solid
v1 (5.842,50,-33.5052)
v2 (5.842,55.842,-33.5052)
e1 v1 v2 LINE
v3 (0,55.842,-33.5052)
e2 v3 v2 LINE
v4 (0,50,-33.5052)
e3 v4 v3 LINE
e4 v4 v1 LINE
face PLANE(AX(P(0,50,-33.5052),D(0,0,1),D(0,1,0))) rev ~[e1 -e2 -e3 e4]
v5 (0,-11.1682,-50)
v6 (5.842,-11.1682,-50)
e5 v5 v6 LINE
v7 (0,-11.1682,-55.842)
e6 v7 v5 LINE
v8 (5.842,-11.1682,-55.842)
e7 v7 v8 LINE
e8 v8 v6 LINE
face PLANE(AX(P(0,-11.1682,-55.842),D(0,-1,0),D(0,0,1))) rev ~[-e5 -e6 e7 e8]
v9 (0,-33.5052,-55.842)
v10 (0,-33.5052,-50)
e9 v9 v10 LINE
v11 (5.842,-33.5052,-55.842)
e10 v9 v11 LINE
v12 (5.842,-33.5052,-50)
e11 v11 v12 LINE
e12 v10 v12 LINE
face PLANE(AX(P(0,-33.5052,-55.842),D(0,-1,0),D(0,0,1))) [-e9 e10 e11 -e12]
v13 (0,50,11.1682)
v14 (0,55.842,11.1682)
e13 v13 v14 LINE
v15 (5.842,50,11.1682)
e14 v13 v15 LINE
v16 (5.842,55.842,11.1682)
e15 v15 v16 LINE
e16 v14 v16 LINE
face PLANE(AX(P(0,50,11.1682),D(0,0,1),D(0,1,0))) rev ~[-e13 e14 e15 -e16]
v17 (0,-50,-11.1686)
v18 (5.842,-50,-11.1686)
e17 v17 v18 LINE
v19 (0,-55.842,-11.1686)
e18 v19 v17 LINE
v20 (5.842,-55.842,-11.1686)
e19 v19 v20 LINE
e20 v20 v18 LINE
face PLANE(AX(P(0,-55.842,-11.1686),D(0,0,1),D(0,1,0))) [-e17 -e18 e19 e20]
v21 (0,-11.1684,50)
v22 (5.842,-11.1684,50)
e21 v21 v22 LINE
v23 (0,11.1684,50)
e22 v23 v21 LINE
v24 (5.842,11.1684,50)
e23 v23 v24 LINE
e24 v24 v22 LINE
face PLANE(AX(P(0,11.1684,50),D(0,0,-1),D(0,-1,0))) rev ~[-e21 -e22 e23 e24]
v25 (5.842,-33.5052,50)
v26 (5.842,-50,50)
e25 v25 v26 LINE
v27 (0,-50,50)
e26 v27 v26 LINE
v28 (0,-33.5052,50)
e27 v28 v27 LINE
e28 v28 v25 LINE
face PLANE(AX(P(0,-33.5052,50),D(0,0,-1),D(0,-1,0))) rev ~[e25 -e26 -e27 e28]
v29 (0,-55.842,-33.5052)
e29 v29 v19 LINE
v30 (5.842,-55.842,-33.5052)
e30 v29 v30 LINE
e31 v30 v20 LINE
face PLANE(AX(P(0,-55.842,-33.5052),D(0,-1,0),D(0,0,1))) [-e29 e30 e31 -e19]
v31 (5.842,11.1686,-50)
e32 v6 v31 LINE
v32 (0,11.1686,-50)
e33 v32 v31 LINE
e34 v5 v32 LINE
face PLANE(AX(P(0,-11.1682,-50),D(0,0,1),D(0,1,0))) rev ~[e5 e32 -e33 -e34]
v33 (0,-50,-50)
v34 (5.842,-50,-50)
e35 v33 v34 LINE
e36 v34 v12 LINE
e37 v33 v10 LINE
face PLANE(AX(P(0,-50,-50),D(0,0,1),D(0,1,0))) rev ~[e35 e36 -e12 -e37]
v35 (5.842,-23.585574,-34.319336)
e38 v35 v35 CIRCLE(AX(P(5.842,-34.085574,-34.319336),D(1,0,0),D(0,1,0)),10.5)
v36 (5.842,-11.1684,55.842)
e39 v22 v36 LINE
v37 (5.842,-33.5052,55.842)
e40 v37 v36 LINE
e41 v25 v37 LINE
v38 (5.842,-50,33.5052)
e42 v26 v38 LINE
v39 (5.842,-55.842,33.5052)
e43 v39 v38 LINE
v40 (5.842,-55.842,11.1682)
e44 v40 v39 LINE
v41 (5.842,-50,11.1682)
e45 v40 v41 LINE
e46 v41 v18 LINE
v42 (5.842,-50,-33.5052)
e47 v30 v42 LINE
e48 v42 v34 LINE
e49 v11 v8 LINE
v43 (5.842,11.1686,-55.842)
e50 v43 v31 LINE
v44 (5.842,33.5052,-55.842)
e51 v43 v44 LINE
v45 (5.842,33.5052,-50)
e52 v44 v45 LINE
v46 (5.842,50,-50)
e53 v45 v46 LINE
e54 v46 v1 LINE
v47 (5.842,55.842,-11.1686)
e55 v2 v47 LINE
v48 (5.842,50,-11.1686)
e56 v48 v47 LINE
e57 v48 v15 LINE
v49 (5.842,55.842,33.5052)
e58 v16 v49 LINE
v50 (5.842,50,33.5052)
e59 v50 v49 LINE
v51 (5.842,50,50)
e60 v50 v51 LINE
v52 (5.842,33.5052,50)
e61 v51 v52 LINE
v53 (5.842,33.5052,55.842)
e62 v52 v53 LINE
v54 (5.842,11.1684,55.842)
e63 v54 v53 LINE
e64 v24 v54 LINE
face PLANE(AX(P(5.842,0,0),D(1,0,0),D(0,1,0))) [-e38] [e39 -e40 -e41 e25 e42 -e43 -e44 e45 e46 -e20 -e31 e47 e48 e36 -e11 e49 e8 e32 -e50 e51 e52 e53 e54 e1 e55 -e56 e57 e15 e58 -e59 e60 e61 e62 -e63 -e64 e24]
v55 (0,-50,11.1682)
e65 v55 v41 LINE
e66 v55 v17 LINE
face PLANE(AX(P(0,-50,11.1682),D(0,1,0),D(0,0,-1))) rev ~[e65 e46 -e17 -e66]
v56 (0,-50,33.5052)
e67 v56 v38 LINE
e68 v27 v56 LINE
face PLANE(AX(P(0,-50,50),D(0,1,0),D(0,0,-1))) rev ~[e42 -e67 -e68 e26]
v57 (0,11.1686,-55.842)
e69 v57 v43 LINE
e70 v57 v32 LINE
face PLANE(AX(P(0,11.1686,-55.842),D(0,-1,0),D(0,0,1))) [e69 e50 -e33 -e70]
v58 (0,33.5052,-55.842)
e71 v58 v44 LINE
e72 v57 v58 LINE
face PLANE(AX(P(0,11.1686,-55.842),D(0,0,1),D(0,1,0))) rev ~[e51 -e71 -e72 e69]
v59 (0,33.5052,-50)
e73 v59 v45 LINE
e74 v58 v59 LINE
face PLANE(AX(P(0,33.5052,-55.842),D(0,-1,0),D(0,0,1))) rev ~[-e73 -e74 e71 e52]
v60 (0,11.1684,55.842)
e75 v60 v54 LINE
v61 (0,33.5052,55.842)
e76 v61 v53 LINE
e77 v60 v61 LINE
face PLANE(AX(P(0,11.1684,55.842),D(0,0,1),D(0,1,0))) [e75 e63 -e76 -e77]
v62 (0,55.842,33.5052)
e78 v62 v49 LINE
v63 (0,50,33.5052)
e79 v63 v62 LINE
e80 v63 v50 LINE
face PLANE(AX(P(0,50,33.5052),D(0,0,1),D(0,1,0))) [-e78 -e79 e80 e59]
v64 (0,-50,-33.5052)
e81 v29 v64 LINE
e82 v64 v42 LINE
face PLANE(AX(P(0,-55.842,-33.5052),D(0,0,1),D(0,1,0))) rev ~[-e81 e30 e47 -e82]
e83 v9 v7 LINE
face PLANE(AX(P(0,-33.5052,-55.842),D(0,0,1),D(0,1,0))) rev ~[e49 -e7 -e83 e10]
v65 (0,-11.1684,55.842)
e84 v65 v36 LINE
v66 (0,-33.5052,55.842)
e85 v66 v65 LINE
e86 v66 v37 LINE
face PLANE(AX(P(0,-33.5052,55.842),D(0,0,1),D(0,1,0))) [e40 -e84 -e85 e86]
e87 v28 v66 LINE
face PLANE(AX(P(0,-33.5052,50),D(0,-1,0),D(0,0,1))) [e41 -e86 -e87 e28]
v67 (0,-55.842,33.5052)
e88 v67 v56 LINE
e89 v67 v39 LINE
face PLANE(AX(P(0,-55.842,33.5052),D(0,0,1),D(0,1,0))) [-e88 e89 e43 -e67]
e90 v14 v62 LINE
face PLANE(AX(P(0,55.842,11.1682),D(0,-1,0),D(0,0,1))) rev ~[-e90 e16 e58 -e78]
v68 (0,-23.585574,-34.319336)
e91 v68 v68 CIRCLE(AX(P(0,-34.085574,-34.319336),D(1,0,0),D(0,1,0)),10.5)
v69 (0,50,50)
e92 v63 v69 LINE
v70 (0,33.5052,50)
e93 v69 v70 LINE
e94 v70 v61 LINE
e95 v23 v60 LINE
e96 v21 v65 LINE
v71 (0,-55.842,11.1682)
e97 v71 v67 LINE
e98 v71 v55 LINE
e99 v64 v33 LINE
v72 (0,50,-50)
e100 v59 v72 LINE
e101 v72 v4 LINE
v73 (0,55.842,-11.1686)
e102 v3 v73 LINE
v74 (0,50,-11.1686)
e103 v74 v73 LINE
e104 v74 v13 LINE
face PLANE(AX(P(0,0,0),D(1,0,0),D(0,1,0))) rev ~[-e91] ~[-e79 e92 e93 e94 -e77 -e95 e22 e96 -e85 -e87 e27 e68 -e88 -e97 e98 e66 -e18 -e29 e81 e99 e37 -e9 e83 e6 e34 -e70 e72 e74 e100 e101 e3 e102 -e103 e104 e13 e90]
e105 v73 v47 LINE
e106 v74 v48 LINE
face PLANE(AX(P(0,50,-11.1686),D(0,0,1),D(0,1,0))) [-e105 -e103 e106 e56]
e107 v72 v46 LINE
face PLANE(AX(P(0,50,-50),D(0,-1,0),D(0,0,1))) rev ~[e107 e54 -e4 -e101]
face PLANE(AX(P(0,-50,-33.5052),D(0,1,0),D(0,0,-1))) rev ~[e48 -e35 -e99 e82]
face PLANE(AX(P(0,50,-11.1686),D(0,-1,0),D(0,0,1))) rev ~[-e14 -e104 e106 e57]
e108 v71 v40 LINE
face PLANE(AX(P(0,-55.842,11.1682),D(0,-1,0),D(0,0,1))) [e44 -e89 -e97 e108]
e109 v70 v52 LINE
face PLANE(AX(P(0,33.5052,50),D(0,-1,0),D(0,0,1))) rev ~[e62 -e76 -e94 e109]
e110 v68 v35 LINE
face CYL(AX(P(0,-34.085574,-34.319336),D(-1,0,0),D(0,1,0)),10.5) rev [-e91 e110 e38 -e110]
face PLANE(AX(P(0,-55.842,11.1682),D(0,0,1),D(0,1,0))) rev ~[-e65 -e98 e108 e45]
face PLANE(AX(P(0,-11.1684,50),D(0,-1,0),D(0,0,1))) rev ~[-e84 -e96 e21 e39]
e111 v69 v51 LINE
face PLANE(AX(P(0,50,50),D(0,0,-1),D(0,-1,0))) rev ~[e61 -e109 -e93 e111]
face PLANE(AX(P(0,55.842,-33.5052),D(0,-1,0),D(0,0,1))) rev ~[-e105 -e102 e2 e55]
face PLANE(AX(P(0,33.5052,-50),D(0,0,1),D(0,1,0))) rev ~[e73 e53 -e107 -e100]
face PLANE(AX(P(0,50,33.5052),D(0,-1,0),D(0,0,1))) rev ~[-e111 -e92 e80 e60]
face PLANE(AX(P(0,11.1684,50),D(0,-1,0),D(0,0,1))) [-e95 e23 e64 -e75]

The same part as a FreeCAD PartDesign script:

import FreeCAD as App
import Part
import Sketcher
Q = App.Units.Quantity

doc = App.newDocument("Part")
body = doc.addObject("PartDesign::Body", "Body")

sketch1 = body.newObject("Sketcher::SketchObject", "Sketch")
sketch1.AttachmentSupport = (doc.getObject("YZ_Plane"), [""])
sketch1.MapMode = "FlatFace"
sketch1.addGeometry(Part.LineSegment(App.Vector(-50, 50, 0), App.Vector(-50, 34, 0)), False)
sketch1.addGeometry(Part.LineSegment(App.Vector(-50, 34, 0), App.Vector(-56, 34, 0)), False)
sketch1.addGeometry(Part.LineSegment(App.Vector(-56, 34, 0), App.Vector(-56, 11, 0)), False)
sketch1.addGeometry(Part.LineSegment(App.Vector(-56, 11, 0), App.Vector(-50, 11, 0)), False)
sketch1.addGeometry(Part.LineSegment(App.Vector(-50, 11, 0), App.Vector(-50, -11, 0)), False)
sketch1.addGeometry(Part.LineSegment(App.Vector(-50, -11, 0), App.Vector(-56, -11, 0)), False)
sketch1.addGeometry(Part.LineSegment(App.Vector(-56, -11, 0), App.Vector(-56, -34, 0)), False)
sketch1.addGeometry(Part.LineSegment(App.Vector(-56, -34, 0), App.Vector(-50, -34, 0)), False)
sketch1.addGeometry(Part.LineSegment(App.Vector(-50, -34, 0), App.Vector(-50, -50, 0)), False)
sketch1.addGeometry(Part.LineSegment(App.Vector(-50, -50, 0), App.Vector(-34, -50, 0)), False)
sketch1.addGeometry(Part.LineSegment(App.Vector(-34, -50, 0), App.Vector(-34, -56, 0)), False)
sketch1.addGeometry(Part.LineSegment(App.Vector(-34, -56, 0), App.Vector(-11, -56, 0)), False)
sketch1.addGeometry(Part.LineSegment(App.Vector(-11, -56, 0), App.Vector(-11, -50, 0)), False)
sketch1.addGeometry(Part.LineSegment(App.Vector(-11, -50, 0), App.Vector(11, -50, 0)), False)
sketch1.addGeometry(Part.LineSegment(App.Vector(11, -50, 0), App.Vector(11, -56, 0)), False)
sketch1.addGeometry(Part.LineSegment(App.Vector(11, -56, 0), App.Vector(34, -56, 0)), False)
sketch1.addGeometry(Part.LineSegment(App.Vector(34, -56, 0), App.Vector(34, -50, 0)), False)
sketch1.addGeometry(Part.LineSegment(App.Vector(34, -50, 0), App.Vector(50, -50, 0)), False)
sketch1.addGeometry(Part.LineSegment(App.Vector(50, -50, 0), App.Vector(50, -34, 0)), False)
sketch1.addGeometry(Part.LineSegment(App.Vector(50, -34, 0), App.Vector(56, -34, 0)), False)
sketch1.addGeometry(Part.LineSegment(App.Vector(56, -34, 0), App.Vector(56, -11, 0)), False)
sketch1.addGeometry(Part.LineSegment(App.Vector(56, -11, 0), App.Vector(50, -11, 0)), False)
sketch1.addGeometry(Part.LineSegment(App.Vector(50, -11, 0), App.Vector(50, 11, 0)), False)
sketch1.addGeometry(Part.LineSegment(App.Vector(50, 11, 0), App.Vector(56, 11, 0)), False)
sketch1.addGeometry(Part.LineSegment(App.Vector(56, 11, 0), App.Vector(56, 34, 0)), False)
sketch1.addGeometry(Part.LineSegment(App.Vector(56, 34, 0), App.Vector(50, 34, 0)), False)
sketch1.addGeometry(Part.LineSegment(App.Vector(50, 34, 0), App.Vector(50, 50, 0)), False)
sketch1.addGeometry(Part.LineSegment(App.Vector(50, 50, 0), App.Vector(34, 50, 0)), False)
sketch1.addGeometry(Part.LineSegment(App.Vector(34, 50, 0), App.Vector(34, 56, 0)), False)
sketch1.addGeometry(Part.LineSegment(App.Vector(34, 56, 0), App.Vector(11, 56, 0)), False)
sketch1.addGeometry(Part.LineSegment(App.Vector(11, 56, 0), App.Vector(11, 50, 0)), False)
sketch1.addGeometry(Part.LineSegment(App.Vector(11, 50, 0), App.Vector(-11, 50, 0)), False)
sketch1.addGeometry(Part.LineSegment(App.Vector(-11, 50, 0), App.Vector(-11, 56, 0)), False)
sketch1.addGeometry(Part.LineSegment(App.Vector(-11, 56, 0), App.Vector(-34, 56, 0)), False)
sketch1.addGeometry(Part.LineSegment(App.Vector(-34, 56, 0), App.Vector(-34, 50, 0)), False)
sketch1.addGeometry(Part.LineSegment(App.Vector(-34, 50, 0), App.Vector(-50, 50, 0)), False)
sketch1.addGeometry(Part.Circle(App.Vector(-34, -34, 0), App.Vector(0, 0, 1), 10), False)
sketch1.addConstraint(Sketcher.Constraint("Coincident", 0, 2, 1, 1))
sketch1.addConstraint(Sketcher.Constraint("Coincident", 1, 2, 2, 1))
sketch1.addConstraint(Sketcher.Constraint("Coincident", 2, 2, 3, 1))
sketch1.addConstraint(Sketcher.Constraint("Coincident", 3, 2, 4, 1))
sketch1.addConstraint(Sketcher.Constraint("Coincident", 4, 2, 5, 1))
sketch1.addConstraint(Sketcher.Constraint("Coincident", 5, 2, 6, 1))
sketch1.addConstraint(Sketcher.Constraint("Coincident", 6, 2, 7, 1))
sketch1.addConstraint(Sketcher.Constraint("Coincident", 7, 2, 8, 1))
sketch1.addConstraint(Sketcher.Constraint("Coincident", 8, 2, 9, 1))
sketch1.addConstraint(Sketcher.Constraint("Coincident", 9, 2, 10, 1))
sketch1.addConstraint(Sketcher.Constraint("Coincident", 10, 2, 11, 1))
sketch1.addConstraint(Sketcher.Constraint("Coincident", 11, 2, 12, 1))
sketch1.addConstraint(Sketcher.Constraint("Coincident", 12, 2, 13, 1))
sketch1.addConstraint(Sketcher.Constraint("Coincident", 13, 2, 14, 1))
sketch1.addConstraint(Sketcher.Constraint("Coincident", 14, 2, 15, 1))
sketch1.addConstraint(Sketcher.Constraint("Coincident", 15, 2, 16, 1))
sketch1.addConstraint(Sketcher.Constraint("Coincident", 16, 2, 17, 1))
sketch1.addConstraint(Sketcher.Constraint("Coincident", 17, 2, 18, 1))
sketch1.addConstraint(Sketcher.Constraint("Coincident", 18, 2, 19, 1))
sketch1.addConstraint(Sketcher.Constraint("Coincident", 19, 2, 20, 1))
sketch1.addConstraint(Sketcher.Constraint("Coincident", 20, 2, 21, 1))
sketch1.addConstraint(Sketcher.Constraint("Coincident", 21, 2, 22, 1))
sketch1.addConstraint(Sketcher.Constraint("Coincident", 22, 2, 23, 1))
sketch1.addConstraint(Sketcher.Constraint("Coincident", 23, 2, 24, 1))
sketch1.addConstraint(Sketcher.Constraint("Coincident", 24, 2, 25, 1))
sketch1.addConstraint(Sketcher.Constraint("Coincident", 25, 2, 26, 1))
sketch1.addConstraint(Sketcher.Constraint("Coincident", 26, 2, 27, 1))
sketch1.addConstraint(Sketcher.Constraint("Coincident", 27, 2, 28, 1))
sketch1.addConstraint(Sketcher.Constraint("Coincident", 28, 2, 29, 1))
sketch1.addConstraint(Sketcher.Constraint("Coincident", 29, 2, 30, 1))
sketch1.addConstraint(Sketcher.Constraint("Coincident", 30, 2, 31, 1))
sketch1.addConstraint(Sketcher.Constraint("Coincident", 31, 2, 32, 1))
sketch1.addConstraint(Sketcher.Constraint("Coincident", 32, 2, 33, 1))
sketch1.addConstraint(Sketcher.Constraint("Coincident", 33, 2, 34, 1))
sketch1.addConstraint(Sketcher.Constraint("Coincident", 34, 2, 35, 1))
sketch1.addConstraint(Sketcher.Constraint("Coincident", 35, 2, 0, 1))
sketch1.addConstraint(Sketcher.Constraint("Vertical", 0))
sketch1.addConstraint(Sketcher.Constraint("Horizontal", 1))
sketch1.addConstraint(Sketcher.Constraint("Vertical", 2))
sketch1.addConstraint(Sketcher.Constraint("Horizontal", 3))
sketch1.addConstraint(Sketcher.Constraint("Vertical", 4))
sketch1.addConstraint(Sketcher.Constraint("Horizontal", 5))
sketch1.addConstraint(Sketcher.Constraint("Vertical", 6))
sketch1.addConstraint(Sketcher.Constraint("Horizontal", 7))
sketch1.addConstraint(Sketcher.Constraint("Vertical", 8))
sketch1.addConstraint(Sketcher.Constraint("Horizontal", 9))
sketch1.addConstraint(Sketcher.Constraint("Vertical", 10))
sketch1.addConstraint(Sketcher.Constraint("Horizontal", 11))
sketch1.addConstraint(Sketcher.Constraint("Vertical", 12))
sketch1.addConstraint(Sketcher.Constraint("Horizontal", 13))
sketch1.addConstraint(Sketcher.Constraint("Vertical", 14))
sketch1.addConstraint(Sketcher.Constraint("Horizontal", 15))
sketch1.addConstraint(Sketcher.Constraint("Vertical", 16))
sketch1.addConstraint(Sketcher.Constraint("Horizontal", 17))
sketch1.addConstraint(Sketcher.Constraint("Vertical", 18))
sketch1.addConstraint(Sketcher.Constraint("Horizontal", 19))
sketch1.addConstraint(Sketcher.Constraint("Vertical", 20))
sketch1.addConstraint(Sketcher.Constraint("Horizontal", 21))
sketch1.addConstraint(Sketcher.Constraint("Vertical", 22))
sketch1.addConstraint(Sketcher.Constraint("Horizontal", 23))
sketch1.addConstraint(Sketcher.Constraint("Vertical", 24))
sketch1.addConstraint(Sketcher.Constraint("Horizontal", 25))
sketch1.addConstraint(Sketcher.Constraint("Vertical", 26))
sketch1.addConstraint(Sketcher.Constraint("Horizontal", 27))
sketch1.addConstraint(Sketcher.Constraint("Vertical", 28))
sketch1.addConstraint(Sketcher.Constraint("Horizontal", 29))
sketch1.addConstraint(Sketcher.Constraint("Vertical", 30))
sketch1.addConstraint(Sketcher.Constraint("Horizontal", 31))
sketch1.addConstraint(Sketcher.Constraint("Vertical", 32))
sketch1.addConstraint(Sketcher.Constraint("Horizontal", 33))
sketch1.addConstraint(Sketcher.Constraint("Vertical", 34))
sketch1.addConstraint(Sketcher.Constraint("Horizontal", 35))
sketch1.addConstraint(Sketcher.Constraint("Symmetric", 0, 2, 18, 2, -1, 1))
sketch1.addConstraint(Sketcher.Constraint("Symmetric", 6, 2, 24, 2, -1, 1))
sketch1.addConstraint(Sketcher.Constraint("Symmetric", 8, 2, 26, 2, -1, 1))
sketch1.addConstraint(Sketcher.Constraint("Symmetric", 10, 2, 28, 2, -1, 1))
sketch1.addConstraint(Sketcher.Constraint("Symmetric", 15, 2, 33, 2, -1, 1))
sketch1.addConstraint(Sketcher.Constraint("Symmetric", 10, 2, 15, 2, -2))
sketch1.addConstraint(Sketcher.Constraint("Symmetric", 8, 2, 17, 2, -2))
sketch1.addConstraint(Sketcher.Constraint("Symmetric", 6, 2, 19, 2, -2))
sketch1.addConstraint(Sketcher.Constraint("Symmetric", 4, 2, 21, 2, -2))
sketch1.addConstraint(Sketcher.Constraint("Symmetric", 2, 2, 23, 2, -2))
sketch1.addConstraint(Sketcher.Constraint("Horizontal", 9, 2, 12, 2))
sketch1.addConstraint(Sketcher.Constraint("Horizontal", 27, 2, 30, 2))
sketch1.addConstraint(Sketcher.Constraint("Horizontal", 31, 2, 34, 2))
sketch1.addConstraint(Sketcher.Constraint("Vertical", 0, 2, 3, 2))
sketch1.addConstraint(Sketcher.Constraint("Equal", 13, 29))
sketch1.addConstraint(Sketcher.Constraint("Equal", 29, 31))
sketch1.addConstraint(Sketcher.Constraint("Equal", 31, 33))
sketch1.addConstraint(Sketcher.Constraint("Equal", 35, 0))
sketch1.addConstraint(Sketcher.Constraint("Equal", 11, 2))
sketch1.addConstraint(Sketcher.Constraint("Equal", 33, 4))
sketch1.addConstraint(Sketcher.Constraint("Equal", 15, 6))
sketch1.addConstraint(Sketcher.Constraint("Equal", 25, 10))
sketch1.addConstraint(Sketcher.Constraint("Diameter", 36, Q("21 mm")))
sketch1.addConstraint(Sketcher.Constraint("DistanceX", 0, 2, -1, 1, Q("50 mm")))
sketch1.addConstraint(Sketcher.Constraint("DistanceX", 1, 2, 1, 1, Q("5.842 mm")))
sketch1.addConstraint(Sketcher.Constraint("DistanceX", 11, 1, 11, 2, Q("22.337 mm")))
sketch1.addConstraint(Sketcher.Constraint("DistanceX", 9, 1, 9, 2, Q("16.4948 mm")))
sketch1.addConstraint(Sketcher.Constraint("DistanceX", 36, 3, -1, 1, Q("34.085574 mm")))
sketch1.addConstraint(Sketcher.Constraint("DistanceY", 36, 3, -1, 1, Q("34.319336 mm")))
pad1 = body.newObject("PartDesign::Pad", "Pad")
pad1.Profile = sketch1
pad1.Length = 5.842

doc.recompute()
